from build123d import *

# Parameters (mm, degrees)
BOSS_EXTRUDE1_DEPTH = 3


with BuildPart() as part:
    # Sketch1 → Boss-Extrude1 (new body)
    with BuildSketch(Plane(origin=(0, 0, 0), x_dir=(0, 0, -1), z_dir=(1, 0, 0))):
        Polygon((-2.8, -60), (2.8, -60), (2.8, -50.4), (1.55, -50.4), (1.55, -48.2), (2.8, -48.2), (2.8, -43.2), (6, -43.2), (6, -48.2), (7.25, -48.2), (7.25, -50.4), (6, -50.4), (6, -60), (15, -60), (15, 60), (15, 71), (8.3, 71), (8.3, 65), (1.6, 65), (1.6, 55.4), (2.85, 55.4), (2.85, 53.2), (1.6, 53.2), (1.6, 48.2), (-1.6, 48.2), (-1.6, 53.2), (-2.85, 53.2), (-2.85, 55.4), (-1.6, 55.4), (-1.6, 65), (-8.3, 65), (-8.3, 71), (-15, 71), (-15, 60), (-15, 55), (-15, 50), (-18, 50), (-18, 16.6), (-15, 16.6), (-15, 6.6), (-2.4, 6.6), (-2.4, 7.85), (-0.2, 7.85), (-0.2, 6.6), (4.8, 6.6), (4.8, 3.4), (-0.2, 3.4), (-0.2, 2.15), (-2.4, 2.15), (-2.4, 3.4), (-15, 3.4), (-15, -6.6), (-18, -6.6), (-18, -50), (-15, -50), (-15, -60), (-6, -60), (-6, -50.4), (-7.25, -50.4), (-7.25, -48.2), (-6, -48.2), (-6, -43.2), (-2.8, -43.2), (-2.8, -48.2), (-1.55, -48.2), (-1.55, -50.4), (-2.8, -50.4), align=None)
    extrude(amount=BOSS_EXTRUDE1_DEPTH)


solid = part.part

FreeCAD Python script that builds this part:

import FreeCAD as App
import Part
import Sketcher
Q = App.Units.Quantity

doc = App.newDocument("Part")
body = doc.addObject("PartDesign::Body", "Body")

# Sketch on YZ plane
sketch1 = body.newObject("Sketcher::SketchObject", "Sketch")
sketch1.AttachmentSupport = (doc.getObject("YZ_Plane"), [""])
sketch1.MapMode = "FlatFace"
sketch1.addGeometry([
    Part.LineSegment(App.Vector(-60, 2.8, 0), App.Vector(-60, -2.8, 0)),  # 0
    Part.LineSegment(App.Vector(-60, -2.8, 0), App.Vector(-50.4, -2.8, 0)),  # 1
    Part.LineSegment(App.Vector(-50.4, -2.8, 0), App.Vector(-50.4, -1.6, 0)),  # 2
    Part.LineSegment(App.Vector(-50.4, -1.6, 0), App.Vector(-48.2, -1.6, 0)),  # 3
    Part.LineSegment(App.Vector(-48.2, -1.6, 0), App.Vector(-48.2, -2.8, 0)),  # 4
    Part.LineSegment(App.Vector(-48.2, -2.8, 0), App.Vector(-43.2, -2.8, 0)),  # 5
    Part.LineSegment(App.Vector(-43.2, -2.8, 0), App.Vector(-43.2, -6, 0)),  # 6
    Part.LineSegment(App.Vector(-43.2, -6, 0), App.Vector(-48.2, -6, 0)),  # 7
    Part.LineSegment(App.Vector(-48.2, -6, 0), App.Vector(-48.2, -7.2, 0)),  # 8
    Part.LineSegment(App.Vector(-48.2, -7.2, 0), App.Vector(-50.4, -7.2, 0)),  # 9
    Part.LineSegment(App.Vector(-50.4, -7.2, 0), App.Vector(-50.4, -6, 0)),  # 10
    Part.LineSegment(App.Vector(-50.4, -6, 0), App.Vector(-60, -6, 0)),  # 11
    Part.LineSegment(App.Vector(-60, -6, 0), App.Vector(-60, -15, 0)),  # 12
    Part.LineSegment(App.Vector(-60, -15, 0), App.Vector(71, -15, 0)),  # 13
    Part.LineSegment(App.Vector(71, -15, 0), App.Vector(71, -8.3, 0)),  # 14
    Part.LineSegment(App.Vector(71, -8.3, 0), App.Vector(65, -8.3, 0)),  # 15
    Part.LineSegment(App.Vector(65, -8.3, 0), App.Vector(65, -1.6, 0)),  # 16
    Part.LineSegment(App.Vector(65, -1.6, 0), App.Vector(55.4, -1.6, 0)),  # 17
    Part.LineSegment(App.Vector(55.4, -1.6, 0), App.Vector(55.4, -2.9, 0)),  # 18
    Part.LineSegment(App.Vector(55.4, -2.9, 0), App.Vector(53.2, -2.9, 0)),  # 19
    Part.LineSegment(App.Vector(53.2, -2.9, 0), App.Vector(53.2, -1.6, 0)),  # 20
    Part.LineSegment(App.Vector(53.2, -1.6, 0), App.Vector(48.2, -1.6, 0)),  # 21
    Part.LineSegment(App.Vector(48.2, -1.6, 0), App.Vector(48.2, 1.6, 0)),  # 22
    Part.LineSegment(App.Vector(48.2, 1.6, 0), App.Vector(53.2, 1.6, 0)),  # 23
    Part.LineSegment(App.Vector(53.2, 1.6, 0), App.Vector(53.2, 2.9, 0)),  # 24
    Part.LineSegment(App.Vector(53.2, 2.9, 0), App.Vector(55.4, 2.9, 0)),  # 25
    Part.LineSegment(App.Vector(55.4, 2.9, 0), App.Vector(55.4, 1.6, 0)),  # 26
    Part.LineSegment(App.Vector(55.4, 1.6, 0), App.Vector(65, 1.6, 0)),  # 27
    Part.LineSegment(App.Vector(65, 1.6, 0), App.Vector(65, 8.3, 0)),  # 28
    Part.LineSegment(App.Vector(65, 8.3, 0), App.Vector(71, 8.3, 0)),  # 29
    Part.LineSegment(App.Vector(71, 8.3, 0), App.Vector(71, 15, 0)),  # 30
    Part.LineSegment(App.Vector(71, 15, 0), App.Vector(50, 15, 0)),  # 31
    Part.LineSegment(App.Vector(50, 15, 0), App.Vector(50, 18, 0)),  # 32
    Part.LineSegment(App.Vector(50, 18, 0), App.Vector(16.6, 18, 0)),  # 33
    Part.LineSegment(App.Vector(16.6, 18, 0), App.Vector(16.6, 15, 0)),  # 34
    Part.LineSegment(App.Vector(16.6, 15, 0), App.Vector(6.6, 15, 0)),  # 35
    Part.LineSegment(App.Vector(6.6, 15, 0), App.Vector(6.6, 2.4, 0)),  # 36
    Part.LineSegment(App.Vector(6.6, 2.4, 0), App.Vector(7.8, 2.4, 0)),  # 37
    Part.LineSegment(App.Vector(7.8, 2.4, 0), App.Vector(7.8, 0.2, 0)),  # 38
    Part.LineSegment(App.Vector(7.8, 0.2, 0), App.Vector(6.6, 0.2, 0)),  # 39
    Part.LineSegment(App.Vector(6.6, 0.2, 0), App.Vector(6.6, -4.8, 0)),  # 40
    Part.LineSegment(App.Vector(6.6, -4.8, 0), App.Vector(3.4, -4.8, 0)),  # 41
    Part.LineSegment(App.Vector(3.4, -4.8, 0), App.Vector(3.4, 0.2, 0)),  # 42
    Part.LineSegment(App.Vector(3.4, 0.2, 0), App.Vector(2.1, 0.2, 0)),  # 43
    Part.LineSegment(App.Vector(2.1, 0.2, 0), App.Vector(2.1, 2.4, 0)),  # 44
    Part.LineSegment(App.Vector(2.1, 2.4, 0), App.Vector(3.4, 2.4, 0)),  # 45
    Part.LineSegment(App.Vector(3.4, 2.4, 0), App.Vector(3.4, 15, 0)),  # 46
    Part.LineSegment(App.Vector(3.4, 15, 0), App.Vector(-6.6, 15, 0)),  # 47
    Part.LineSegment(App.Vector(-6.6, 15, 0), App.Vector(-6.6, 18, 0)),  # 48
    Part.LineSegment(App.Vector(-6.6, 18, 0), App.Vector(-50, 18, 0)),  # 49
    Part.LineSegment(App.Vector(-50, 18, 0), App.Vector(-50, 15, 0)),  # 50
    Part.LineSegment(App.Vector(-50, 15, 0), App.Vector(-60, 15, 0)),  # 51
    Part.LineSegment(App.Vector(-60, 15, 0), App.Vector(-60, 6, 0)),  # 52
    Part.LineSegment(App.Vector(-60, 6, 0), App.Vector(-50.4, 6, 0)),  # 53
    Part.LineSegment(App.Vector(-50.4, 6, 0), App.Vector(-50.4, 7.2, 0)),  # 54
    Part.LineSegment(App.Vector(-50.4, 7.2, 0), App.Vector(-48.2, 7.2, 0)),  # 55
    Part.LineSegment(App.Vector(-48.2, 7.2, 0), App.Vector(-48.2, 6, 0)),  # 56
    Part.LineSegment(App.Vector(-48.2, 6, 0), App.Vector(-43.2, 6, 0)),  # 57
    Part.LineSegment(App.Vector(-43.2, 6, 0), App.Vector(-43.2, 2.8, 0)),  # 58
    Part.LineSegment(App.Vector(-43.2, 2.8, 0), App.Vector(-48.2, 2.8, 0)),  # 59
    Part.LineSegment(App.Vector(-48.2, 2.8, 0), App.Vector(-48.2, 1.6, 0)),  # 60
    Part.LineSegment(App.Vector(-48.2, 1.6, 0), App.Vector(-50.4, 1.6, 0)),  # 61
    Part.LineSegment(App.Vector(-50.4, 1.6, 0), App.Vector(-50.4, 2.8, 0)),  # 62
    Part.LineSegment(App.Vector(-50.4, 2.8, 0), App.Vector(-60, 2.8, 0)),  # 63
], False)
sketch1.addConstraint([
    Sketcher.Constraint("Coincident", 0, 2, 1, 1),
    Sketcher.Constraint("Coincident", 1, 2, 2, 1),
    Sketcher.Constraint("Coincident", 2, 2, 3, 1),
    Sketcher.Constraint("Coincident", 3, 2, 4, 1),
    Sketcher.Constraint("Coincident", 4, 2, 5, 1),
    Sketcher.Constraint("Coincident", 5, 2, 6, 1),
    Sketcher.Constraint("Coincident", 6, 2, 7, 1),
    Sketcher.Constraint("Coincident", 7, 2, 8, 1),
    Sketcher.Constraint("Coincident", 8, 2, 9, 1),
    Sketcher.Constraint("Coincident", 9, 2, 10, 1),
    Sketcher.Constraint("Coincident", 10, 2, 11, 1),
    Sketcher.Constraint("Coincident", 11, 2, 12, 1),
    Sketcher.Constraint("Coincident", 12, 2, 13, 1),
    Sketcher.Constraint("Coincident", 13, 2, 14, 1),
    Sketcher.Constraint("Coincident", 14, 2, 15, 1),
    Sketcher.Constraint("Coincident", 15, 2, 16, 1),
    Sketcher.Constraint("Coincident", 16, 2, 17, 1),
    Sketcher.Constraint("Coincident", 17, 2, 18, 1),
    Sketcher.Constraint("Coincident", 18, 2, 19, 1),
    Sketcher.Constraint("Coincident", 19, 2, 20, 1),
    Sketcher.Constraint("Coincident", 20, 2, 21, 1),
    Sketcher.Constraint("Coincident", 21, 2, 22, 1),
    Sketcher.Constraint("Coincident", 22, 2, 23, 1),
    Sketcher.Constraint("Coincident", 23, 2, 24, 1),
    Sketcher.Constraint("Coincident", 24, 2, 25, 1),
    Sketcher.Constraint("Coincident", 25, 2, 26, 1),
    Sketcher.Constraint("Coincident", 26, 2, 27, 1),
    Sketcher.Constraint("Coincident", 27, 2, 28, 1),
    Sketcher.Constraint("Coincident", 28, 2, 29, 1),
    Sketcher.Constraint("Coincident", 29, 2, 30, 1),
    Sketcher.Constraint("Coincident", 30, 2, 31, 1),
    Sketcher.Constraint("Coincident", 31, 2, 32, 1),
    Sketcher.Constraint("Coincident", 32, 2, 33, 1),
    Sketcher.Constraint("Coincident", 33, 2, 34, 1),
    Sketcher.Constraint("Coincident", 34, 2, 35, 1),
    Sketcher.Constraint("Coincident", 35, 2, 36, 1),
    Sketcher.Constraint("Coincident", 36, 2, 37, 1),
    Sketcher.Constraint("Coincident", 37, 2, 38, 1),
    Sketcher.Constraint("Coincident", 38, 2, 39, 1),
    Sketcher.Constraint("Coincident", 39, 2, 40, 1),
    Sketcher.Constraint("Coincident", 40, 2, 41, 1),
    Sketcher.Constraint("Coincident", 41, 2, 42, 1),
    Sketcher.Constraint("Coincident", 42, 2, 43, 1),
    Sketcher.Constraint("Coincident", 43, 2, 44, 1),
    Sketcher.Constraint("Coincident", 44, 2, 45, 1),
    Sketcher.Constraint("Coincident", 45, 2, 46, 1),
    Sketcher.Constraint("Coincident", 46, 2, 47, 1),
    Sketcher.Constraint("Coincident", 47, 2, 48, 1),
    Sketcher.Constraint("Coincident", 48, 2, 49, 1),
    Sketcher.Constraint("Coincident", 49, 2, 50, 1),
    Sketcher.Constraint("Coincident", 50, 2, 51, 1),
    Sketcher.Constraint("Coincident", 51, 2, 52, 1),
    Sketcher.Constraint("Coincident", 52, 2, 53, 1),
    Sketcher.Constraint("Coincident", 53, 2, 54, 1),
    Sketcher.Constraint("Coincident", 54, 2, 55, 1),
    Sketcher.Constraint("Coincident", 55, 2, 56, 1),
    Sketcher.Constraint("Coincident", 56, 2, 57, 1),
    Sketcher.Constraint("Coincident", 57, 2, 58, 1),
    Sketcher.Constraint("Coincident", 58, 2, 59, 1),
    Sketcher.Constraint("Coincident", 59, 2, 60, 1),
    Sketcher.Constraint("Coincident", 60, 2, 61, 1),
    Sketcher.Constraint("Coincident", 61, 2, 62, 1),
    Sketcher.Constraint("Coincident", 62, 2, 63, 1),
    Sketcher.Constraint("Coincident", 63, 2, 0, 1),
    Sketcher.Constraint("Vertical", 0),
    Sketcher.Constraint("Horizontal", 1),
    Sketcher.Constraint("Vertical", 2),
    Sketcher.Constraint("Horizontal", 3),
    Sketcher.Constraint("Vertical", 4),
    Sketcher.Constraint("Horizontal", 5),
    Sketcher.Constraint("Vertical", 6),
    Sketcher.Constraint("Horizontal", 7),
    Sketcher.Constraint("Vertical", 8),
    Sketcher.Constraint("Horizontal", 9),
    Sketcher.Constraint("Vertical", 10),
    Sketcher.Constraint("Horizontal", 11),
    Sketcher.Constraint("Vertical", 12),
    Sketcher.Constraint("Horizontal", 13),
    Sketcher.Constraint("Vertical", 14),
    Sketcher.Constraint("Horizontal", 15),
    Sketcher.Constraint("Vertical", 16),
    Sketcher.Constraint("Horizontal", 17),
    Sketcher.Constraint("Vertical", 18),
    Sketcher.Constraint("Horizontal", 19),
    Sketcher.Constraint("Vertical", 20),
    Sketcher.Constraint("Horizontal", 21),
    Sketcher.Constraint("Vertical", 22),
    Sketcher.Constraint("Horizontal", 23),
    Sketcher.Constraint("Vertical", 24),
    Sketcher.Constraint("Horizontal", 25),
    Sketcher.Constraint("Vertical", 26),
    Sketcher.Constraint("Horizontal", 27),
    Sketcher.Constraint("Vertical", 28),
    Sketcher.Constraint("Horizontal", 29),
    Sketcher.Constraint("Vertical", 30),
    Sketcher.Constraint("Horizontal", 31),
    Sketcher.Constraint("Vertical", 32),
    Sketcher.Constraint("Horizontal", 33),
    Sketcher.Constraint("Vertical", 34),
    Sketcher.Constraint("Horizontal", 35),
    Sketcher.Constraint("Vertical", 36),
    Sketcher.Constraint("Horizontal", 37),
    Sketcher.Constraint("Vertical", 38),
    Sketcher.Constraint("Horizontal", 39),
    Sketcher.Constraint("Vertical", 40),
    Sketcher.Constraint("Horizontal", 41),
    Sketcher.Constraint("Vertical", 42),
    Sketcher.Constraint("Horizontal", 43),
    Sketcher.Constraint("Vertical", 44),
    Sketcher.Constraint("Horizontal", 45),
    Sketcher.Constraint("Vertical", 46),
    Sketcher.Constraint("Horizontal", 47),
    Sketcher.Constraint("Vertical", 48),
    Sketcher.Constraint("Horizontal", 49),
    Sketcher.Constraint("Vertical", 50),
    Sketcher.Constraint("Horizontal", 51),
    Sketcher.Constraint("Vertical", 52),
    Sketcher.Constraint("Horizontal", 53),
    Sketcher.Constraint("Vertical", 54),
    Sketcher.Constraint("Horizontal", 55),
    Sketcher.Constraint("Vertical", 56),
    Sketcher.Constraint("Horizontal", 57),
    Sketcher.Constraint("Vertical", 58),
    Sketcher.Constraint("Horizontal", 59),
    Sketcher.Constraint("Vertical", 60),
    Sketcher.Constraint("Horizontal", 61),
    Sketcher.Constraint("Vertical", 62),
    Sketcher.Constraint("Horizontal", 63),
    Sketcher.Constraint("Symmetric", 35, 2, 47, 2, -2),
    Sketcher.Constraint("Symmetric", 32, 2, 49, 2, -2),
    Sketcher.Constraint("Symmetric", 20, 2, 23, 2, -1),
    Sketcher.Constraint("Symmetric", 18, 2, 25, 2, -1),
    Sketcher.Constraint("Symmetric", 16, 2, 27, 2, -1),
    Sketcher.Constraint("Symmetric", 14, 2, 29, 2, -1),
    Sketcher.Constraint("Symmetric", 12, 2, 51, 2, -1),
    Sketcher.Constraint("Symmetric", 10, 2, 53, 2, -1),
    Sketcher.Constraint("Symmetric", 8, 2, 55, 2, -1),
    Sketcher.Constraint("Symmetric", 6, 2, 57, 2, -1),
    Sketcher.Constraint("Symmetric", 4, 2, 59, 2, -1),
    Sketcher.Constraint("Symmetric", 2, 2, 61, 2, -1),
    Sketcher.Constraint("Horizontal", 1, 2, 4, 2),
    Sketcher.Constraint("Horizontal", 7, 2, 10, 2),
    Sketcher.Constraint("Horizontal", 17, 2, 20, 2),
    Sketcher.Constraint("Horizontal", 31, 2, 34, 2),
    Sketcher.Constraint("Horizontal", 39, 2, 42, 2),
    Sketcher.Constraint("Horizontal", 37, 2, 44, 2),
    Sketcher.Constraint("Horizontal", 47, 2, 50, 2),
    Sketcher.Constraint("Horizontal", 59, 2, 62, 2),
    Sketcher.Constraint("Vertical", 4, 2, 7, 2),
    Sketcher.Constraint("Vertical", 2, 2, 9, 2),
    Sketcher.Constraint("Vertical", 0, 2, 11, 2),
    Sketcher.Constraint("Vertical", 36, 2, 39, 2),
    Sketcher.Constraint("Vertical", 42, 2, 45, 2),
    Sketcher.Constraint("Equal", 11, 17),
    Sketcher.Constraint("Equal", 9, 19),
    Sketcher.Constraint("Equal", 7, 21),
    Sketcher.Constraint("Equal", 39, 43),
    Sketcher.Constraint("Equal", 35, 47),
    Sketcher.Constraint("Equal", 47, 51),
    Sketcher.Constraint("Equal", 45, 2),
    Sketcher.Constraint("Equal", 41, 6),
    Sketcher.Constraint("Equal", 4, 8),
    Sketcher.Constraint("Equal", 14, 16),
    Sketcher.Constraint("Equal", 10, 18),
    Sketcher.Constraint("Equal", 6, 22),
    Sketcher.Constraint("Equal", 61, 38),
    Sketcher.Constraint("Equal", 59, 40),
    Sketcher.Constraint("DistanceX", 5, 1, 5, 2, Q("5 mm")),
    Sketcher.Constraint("DistanceX", 13, 1, 13, 2, Q("131 mm")),
    Sketcher.Constraint("DistanceX", 15, 2, 15, 1, Q("6 mm")),
    Sketcher.Constraint("DistanceX", 31, 2, 31, 1, Q("21 mm")),
    Sketcher.Constraint("DistanceX", 35, 2, 35, 1, Q("10 mm")),
    Sketcher.Constraint("DistanceY", 12, 2, 12, 1, Q("9 mm")),
    Sketcher.Constraint("DistanceY", 32, 1, 32, 2, Q("3 mm")),
    Sketcher.Constraint("DistanceX", 1, 1, 1, 2, Q("9.6 mm")),
    Sketcher.Constraint("DistanceX", 3, 1, 3, 2, Q("2.2 mm")),
    Sketcher.Constraint("DistanceX", 33, 2, 33, 1, Q("33.4 mm")),
    Sketcher.Constraint("DistanceY", 0, 2, 0, 1, Q("5.6 mm")),
    Sketcher.Constraint("DistanceY", 36, 2, 36, 1, Q("12.6 mm")),
    Sketcher.Constraint("DistanceX", 37, 1, 37, 2, Q("1.25 mm")),
])
pad1 = body.newObject("PartDesign::Pad", "Pad")
pad1.Profile = sketch1
pad1.Length = 3

doc.recompute()
